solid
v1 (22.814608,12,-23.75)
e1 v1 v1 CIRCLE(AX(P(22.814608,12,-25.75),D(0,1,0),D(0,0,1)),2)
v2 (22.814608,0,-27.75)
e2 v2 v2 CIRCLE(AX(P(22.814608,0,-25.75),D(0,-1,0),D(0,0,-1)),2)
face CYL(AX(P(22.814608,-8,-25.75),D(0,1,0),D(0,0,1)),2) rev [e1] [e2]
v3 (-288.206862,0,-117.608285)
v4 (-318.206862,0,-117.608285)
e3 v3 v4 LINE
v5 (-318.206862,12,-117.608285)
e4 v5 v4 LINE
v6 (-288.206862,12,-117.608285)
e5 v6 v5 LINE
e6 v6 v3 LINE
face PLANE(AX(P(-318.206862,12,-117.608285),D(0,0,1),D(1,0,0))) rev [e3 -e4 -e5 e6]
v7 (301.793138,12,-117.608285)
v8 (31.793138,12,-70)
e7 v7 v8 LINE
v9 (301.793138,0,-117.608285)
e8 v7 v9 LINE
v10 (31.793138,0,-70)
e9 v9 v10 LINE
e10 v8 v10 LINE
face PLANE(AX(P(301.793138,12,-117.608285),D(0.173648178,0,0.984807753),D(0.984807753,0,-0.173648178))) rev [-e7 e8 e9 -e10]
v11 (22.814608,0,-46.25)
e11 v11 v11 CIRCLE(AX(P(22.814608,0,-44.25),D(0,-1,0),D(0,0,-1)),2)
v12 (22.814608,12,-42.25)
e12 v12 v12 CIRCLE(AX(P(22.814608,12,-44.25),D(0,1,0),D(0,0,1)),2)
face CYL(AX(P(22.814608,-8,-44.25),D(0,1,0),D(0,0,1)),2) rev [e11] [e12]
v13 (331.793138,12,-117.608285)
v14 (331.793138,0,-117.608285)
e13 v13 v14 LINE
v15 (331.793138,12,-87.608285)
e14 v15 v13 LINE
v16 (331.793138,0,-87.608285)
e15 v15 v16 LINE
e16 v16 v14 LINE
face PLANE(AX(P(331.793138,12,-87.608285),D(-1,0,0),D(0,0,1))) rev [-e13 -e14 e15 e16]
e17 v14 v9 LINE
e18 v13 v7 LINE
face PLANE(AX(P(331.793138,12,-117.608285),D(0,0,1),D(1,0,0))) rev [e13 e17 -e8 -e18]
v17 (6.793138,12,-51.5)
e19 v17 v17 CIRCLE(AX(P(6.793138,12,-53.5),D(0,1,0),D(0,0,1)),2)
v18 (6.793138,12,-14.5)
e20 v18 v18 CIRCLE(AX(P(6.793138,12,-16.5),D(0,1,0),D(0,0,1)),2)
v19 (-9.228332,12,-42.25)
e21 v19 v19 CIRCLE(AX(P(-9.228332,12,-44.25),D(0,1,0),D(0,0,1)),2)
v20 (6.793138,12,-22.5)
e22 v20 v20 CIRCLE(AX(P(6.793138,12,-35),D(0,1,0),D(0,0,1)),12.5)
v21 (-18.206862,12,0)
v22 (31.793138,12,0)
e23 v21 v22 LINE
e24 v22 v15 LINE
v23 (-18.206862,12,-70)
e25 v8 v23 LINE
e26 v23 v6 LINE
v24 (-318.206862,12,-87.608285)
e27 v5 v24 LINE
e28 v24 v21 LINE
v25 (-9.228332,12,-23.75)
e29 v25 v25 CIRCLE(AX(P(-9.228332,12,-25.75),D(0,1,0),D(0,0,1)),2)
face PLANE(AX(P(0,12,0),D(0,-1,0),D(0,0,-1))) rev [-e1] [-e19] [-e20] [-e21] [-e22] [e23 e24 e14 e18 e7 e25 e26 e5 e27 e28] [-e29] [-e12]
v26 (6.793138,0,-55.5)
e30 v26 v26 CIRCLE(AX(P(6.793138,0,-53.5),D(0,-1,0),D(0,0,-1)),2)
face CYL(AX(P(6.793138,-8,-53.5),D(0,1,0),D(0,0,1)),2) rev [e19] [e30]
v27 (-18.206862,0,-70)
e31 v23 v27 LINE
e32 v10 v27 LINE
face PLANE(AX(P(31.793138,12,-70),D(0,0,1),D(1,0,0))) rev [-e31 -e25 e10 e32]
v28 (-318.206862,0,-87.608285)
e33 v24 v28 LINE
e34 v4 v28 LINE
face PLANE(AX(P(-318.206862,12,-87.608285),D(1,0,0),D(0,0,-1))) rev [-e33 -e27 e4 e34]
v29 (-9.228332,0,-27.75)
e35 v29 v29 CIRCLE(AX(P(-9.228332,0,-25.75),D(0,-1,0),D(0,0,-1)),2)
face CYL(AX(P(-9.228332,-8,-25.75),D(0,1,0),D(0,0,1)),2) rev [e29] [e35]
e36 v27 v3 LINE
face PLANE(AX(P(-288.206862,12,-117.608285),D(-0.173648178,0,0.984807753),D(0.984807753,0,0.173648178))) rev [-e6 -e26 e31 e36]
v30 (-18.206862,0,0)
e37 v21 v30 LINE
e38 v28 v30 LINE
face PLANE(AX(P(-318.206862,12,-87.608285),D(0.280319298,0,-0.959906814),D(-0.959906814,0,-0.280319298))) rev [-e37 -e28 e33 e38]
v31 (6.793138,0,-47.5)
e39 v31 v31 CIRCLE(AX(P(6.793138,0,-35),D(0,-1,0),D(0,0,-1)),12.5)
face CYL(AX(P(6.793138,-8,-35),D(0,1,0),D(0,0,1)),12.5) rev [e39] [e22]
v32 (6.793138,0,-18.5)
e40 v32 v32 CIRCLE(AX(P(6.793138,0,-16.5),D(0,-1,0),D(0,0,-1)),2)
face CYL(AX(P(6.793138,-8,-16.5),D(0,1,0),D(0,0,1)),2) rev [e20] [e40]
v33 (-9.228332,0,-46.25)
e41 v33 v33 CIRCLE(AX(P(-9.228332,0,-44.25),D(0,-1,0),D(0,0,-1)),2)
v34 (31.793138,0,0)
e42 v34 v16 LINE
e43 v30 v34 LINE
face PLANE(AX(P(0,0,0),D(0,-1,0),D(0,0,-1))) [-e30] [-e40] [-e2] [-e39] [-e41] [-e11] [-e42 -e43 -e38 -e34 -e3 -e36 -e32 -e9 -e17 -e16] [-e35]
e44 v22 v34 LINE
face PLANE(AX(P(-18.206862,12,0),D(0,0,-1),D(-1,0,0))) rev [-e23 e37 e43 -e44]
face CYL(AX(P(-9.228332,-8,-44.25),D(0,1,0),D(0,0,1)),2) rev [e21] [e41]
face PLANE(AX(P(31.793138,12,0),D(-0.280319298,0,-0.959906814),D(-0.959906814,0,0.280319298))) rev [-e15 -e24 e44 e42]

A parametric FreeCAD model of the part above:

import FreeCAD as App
import Part
import Sketcher
Q = App.Units.Quantity

doc = App.newDocument("Part")
body = doc.addObject("PartDesign::Body", "Body")

# Sketch on XZ plane
sketch1 = doc.addObject("Sketcher::SketchObject", "Sketch")
body.addObject(sketch1)
sketch1.AttachmentSupport = (doc.XZ_Plane, [""])
sketch1.MapMode = "FlatFace"
sketch1.addGeometry([
    Part.LineSegment(App.Vector(-318, -88, 0), App.Vector(-18, 0, 0)),  # 0
    Part.LineSegment(App.Vector(-18, 0, 0), App.Vector(32, 0, 0)),  # 1
    Part.LineSegment(App.Vector(32, 0, 0), App.Vector(332, -88, 0)),  # 2
    Part.LineSegment(App.Vector(332, -88, 0), App.Vector(332, -118, 0)),  # 3
    Part.LineSegment(App.Vector(332, -118, 0), App.Vector(302, -118, 0)),  # 4
    Part.LineSegment(App.Vector(302, -118, 0), App.Vector(32, -70, 0)),  # 5
    Part.LineSegment(App.Vector(32, -70, 0), App.Vector(-18, -70, 0)),  # 6
    Part.LineSegment(App.Vector(-18, -70, 0), App.Vector(-288, -118, 0)),  # 7
    Part.LineSegment(App.Vector(-288, -118, 0), App.Vector(-318, -118, 0)),  # 8
    Part.LineSegment(App.Vector(-318, -118, 0), App.Vector(-318, -88, 0)),  # 9
], False)
sketch1.addConstraint([
    Sketcher.Constraint("Coincident", 0, 2, 1, 1),
    Sketcher.Constraint("Coincident", 1, 2, 2, 1),
    Sketcher.Constraint("Coincident", 2, 2, 3, 1),
    Sketcher.Constraint("Coincident", 3, 2, 4, 1),
    Sketcher.Constraint("Coincident", 4, 2, 5, 1),
    Sketcher.Constraint("Coincident", 5, 2, 6, 1),
    Sketcher.Constraint("Coincident", 6, 2, 7, 1),
    Sketcher.Constraint("Coincident", 7, 2, 8, 1),
    Sketcher.Constraint("Coincident", 8, 2, 9, 1),
    Sketcher.Constraint("Coincident", 9, 2, 0, 1),
    Sketcher.Constraint("Horizontal", 1),
    Sketcher.Constraint("Vertical", 3),
    Sketcher.Constraint("Horizontal", 4),
    Sketcher.Constraint("Horizontal", 6),
    Sketcher.Constraint("Horizontal", 8),
    Sketcher.Constraint("Vertical", 9),
    Sketcher.Constraint("PointOnObject", 0, 2, -1),
    Sketcher.Constraint("Horizontal", 4, 2, 7, 2),
    Sketcher.Constraint("Horizontal", 2, 2, 9, 2),
    Sketcher.Constraint("Vertical", 1, 2, 5, 2),
    Sketcher.Constraint("Vertical", 0, 2, 6, 2),
    Sketcher.Constraint("Equal", 4, 8),
    Sketcher.Constraint("Equal", 8, 3),
    Sketcher.Constraint("Equal", 0, 2),
    Sketcher.Constraint("DistanceX", 1, 1, 1, 2, Q("50 mm")),
    Sketcher.Constraint("DistanceX", 4, 2, 4, 1, Q("30 mm")),
    Sketcher.Constraint("Angle", 5, Q("170 deg")),
    Sketcher.Constraint("DistanceY", 5, 2, -1, 1, Q("70 mm")),
    Sketcher.Constraint("DistanceX", 1, 2, 2, 2, Q("300 mm")),
    Sketcher.Constraint("DistanceX", 0, 2, -1, 1, Q("18.206862 mm")),
])
pad1 = doc.addObject("PartDesign::Pad", "Pad")
body.addObject(pad1)
pad1.Profile = sketch1
pad1.Length = 12
pad1.Reversed = True

# Sketch on XZ plane
sketch2 = doc.addObject("Sketcher::SketchObject", "Sketch001")
body.addObject(sketch2)
sketch2.AttachmentSupport = (doc.XZ_Plane, [""])
sketch2.MapMode = "FlatFace"
sketch2.AttachmentOffset = App.Placement(App.Vector(0, 0, -12), App.Rotation())
sketch2.addGeometry([
    Part.Circle(App.Vector(6.8, -35, 0), App.Vector(0, 0, 1), 12.5),  # 0
    Part.Circle(App.Vector(6.8, -53.5, 0), App.Vector(0, 0, 1), 2),  # 1
    Part.Circle(App.Vector(22.8, -44.2, 0), App.Vector(0, 0, 1), 2),  # 2
    Part.Circle(App.Vector(22.8, -25.8, 0), App.Vector(0, 0, 1), 2),  # 3
    Part.Circle(App.Vector(6.8, -16.5, 0), App.Vector(0, 0, 1), 2),  # 4
    Part.Circle(App.Vector(-9.2, -25.8, 0), App.Vector(0, 0, 1), 2),  # 5
    Part.Circle(App.Vector(-9.2, -44.2, 0), App.Vector(0, 0, 1), 2),  # 6
], False)
sketch2.addConstraint([
    Sketcher.Constraint("Equal", 1, 2),
    Sketcher.Constraint("Equal", 2, 3),
    Sketcher.Constraint("Equal", 3, 4),
    Sketcher.Constraint("Equal", 4, 5),
    Sketcher.Constraint("Equal", 5, 6),
    Sketcher.Constraint("Horizontal", 3, 3, 5, 3),
    Sketcher.Constraint("Horizontal", 2, 3, 6, 3),
    Sketcher.Constraint("Vertical", 0, 3, 1, 3),
    Sketcher.Constraint("Vertical", 2, 3, 3, 3),
    Sketcher.Constraint("Vertical", 1, 3, 4, 3),
    Sketcher.Constraint("Vertical", 5, 3, 6, 3),
    Sketcher.Constraint("Diameter", 0, Q("25 mm")),
    Sketcher.Constraint("Diameter", 1, Q("4 mm")),
    Sketcher.Constraint("DistanceY", 0, 3, -1, 1, Q("35 mm")),
    Sketcher.Constraint("DistanceY", 1, 3, 4, 3, Q("37 mm")),
    Sketcher.Constraint("DistanceY", 1, 3, -1, 1, Q("53.5 mm")),
    Sketcher.Constraint("DistanceY", 2, 3, 3, 3, Q("18.5 mm")),
    Sketcher.Constraint("DistanceY", 2, 3, -1, 1, Q("44.25 mm")),
    Sketcher.Constraint("DistanceX", -1, 1, 0, 3, Q("6.793138 mm")),
    Sketcher.Constraint("DistanceX", -1, 1, 2, 3, Q("22.814608 mm")),
    Sketcher.Constraint("DistanceX", 5, 3, -1, 1, Q("9.228332 mm")),
])
pocket1 = doc.addObject("PartDesign::Pocket", "Pocket")
body.addObject(pocket1)
pocket1.Profile = sketch2
pocket1.Length = 20
pocket1.Reversed = True

doc.recompute()
